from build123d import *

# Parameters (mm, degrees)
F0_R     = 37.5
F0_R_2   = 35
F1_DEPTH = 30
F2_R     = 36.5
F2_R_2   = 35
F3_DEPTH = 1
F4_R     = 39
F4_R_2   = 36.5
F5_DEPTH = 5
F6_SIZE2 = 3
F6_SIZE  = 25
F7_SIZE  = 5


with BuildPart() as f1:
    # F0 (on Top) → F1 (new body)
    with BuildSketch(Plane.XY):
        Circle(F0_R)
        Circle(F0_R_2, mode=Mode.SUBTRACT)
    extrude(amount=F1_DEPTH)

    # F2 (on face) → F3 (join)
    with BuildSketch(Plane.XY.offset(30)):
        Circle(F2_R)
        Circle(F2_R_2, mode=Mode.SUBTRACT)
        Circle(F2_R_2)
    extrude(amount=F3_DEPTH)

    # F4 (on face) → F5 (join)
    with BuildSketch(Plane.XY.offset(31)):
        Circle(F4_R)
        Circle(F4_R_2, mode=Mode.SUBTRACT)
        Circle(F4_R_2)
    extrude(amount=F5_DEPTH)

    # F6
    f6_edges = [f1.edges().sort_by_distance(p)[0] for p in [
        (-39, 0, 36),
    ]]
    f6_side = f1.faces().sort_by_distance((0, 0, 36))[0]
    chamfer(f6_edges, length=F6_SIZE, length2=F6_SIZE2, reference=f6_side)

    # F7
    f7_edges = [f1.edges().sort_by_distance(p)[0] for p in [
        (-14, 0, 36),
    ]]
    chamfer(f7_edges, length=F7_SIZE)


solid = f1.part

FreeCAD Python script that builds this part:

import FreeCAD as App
import Part
import Sketcher

V = App.Vector
Q = App.Units.Quantity


def edges_at(feature, points):
    """Names of the edges that pass closest to the given points."""
    edges = feature.Shape.Edges
    near = lambda p: min(range(len(edges)), key=lambda i: edges[i].distToShape(Part.Vertex(*p))[0])
    return sorted({f"Edge{near(p) + 1}" for p in points})

doc = App.newDocument("Part")
body = doc.addObject("PartDesign::Body", "Body")

sketch1 = body.newObject("Sketcher::SketchObject", "Sketch")
sketch1.AttachmentSupport = (doc.getObject("XY_Plane"), [""])
sketch1.MapMode = "FlatFace"
sketch1.addGeometry([
    Part.Circle(V(0, 0, 0), V(0, 0, 1), 38),
    Part.Circle(V(0, 0, 0), V(0, 0, 1), 35),
], False)
sketch1.addConstraint([
    Sketcher.Constraint("Coincident", 0, 3, -1, 1),
    Sketcher.Constraint("Coincident", 1, 3, -1, 1),
    Sketcher.Constraint("Diameter", 0, Q("75 mm")),
    Sketcher.Constraint("Diameter", 1, Q("70 mm")),
])
pad1 = body.newObject("PartDesign::Pad", "Pad")
pad1.Profile = sketch1
pad1.Length = 30

sketch2 = body.newObject("Sketcher::SketchObject", "Sketch001")
sketch2.AttachmentSupport = (doc.getObject("XY_Plane"), [""])
sketch2.MapMode = "FlatFace"
sketch2.AttachmentOffset = App.Placement(V(0, 0, 30), App.Rotation())
sketch2.addGeometry(Part.Circle(V(0, 0, 0), V(0, 0, 1), 36), False)
sketch2.addConstraint([
    Sketcher.Constraint("Coincident", 0, 3, -1, 1),
    Sketcher.Constraint("Diameter", 0, Q("73 mm")),
])
pad2 = body.newObject("PartDesign::Pad", "Pad001")
pad2.Profile = sketch2
pad2.Length = 1

sketch3 = body.newObject("Sketcher::SketchObject", "Sketch002")
sketch3.AttachmentSupport = (doc.getObject("XY_Plane"), [""])
sketch3.MapMode = "FlatFace"
sketch3.AttachmentOffset = App.Placement(V(0, 0, 31), App.Rotation())
sketch3.addGeometry(Part.Circle(V(0, 0, 0), V(0, 0, 1), 39), False)
sketch3.addConstraint([
    Sketcher.Constraint("Coincident", 0, 3, -1, 1),
    Sketcher.Constraint("Diameter", 0, Q("78 mm")),
])
pad3 = body.newObject("PartDesign::Pad", "Pad002")
pad3.Profile = sketch3
pad3.Length = 5
doc.recompute()

chamfer = body.newObject("PartDesign::Chamfer", "Chamfer")
chamfer.Base = (pad3, edges_at(pad3, [(-39, 0, 36)]))
chamfer.ChamferType = "Two distances"
chamfer.Size = 25
chamfer.Size2 = 3
chamfer.FlipDirection = True
doc.recompute()

chamfer2 = body.newObject("PartDesign::Chamfer", "Chamfer001")
chamfer2.Base = (chamfer, edges_at(chamfer, [(-14, 0, 36)]))
chamfer2.Size = 5

doc.recompute()
